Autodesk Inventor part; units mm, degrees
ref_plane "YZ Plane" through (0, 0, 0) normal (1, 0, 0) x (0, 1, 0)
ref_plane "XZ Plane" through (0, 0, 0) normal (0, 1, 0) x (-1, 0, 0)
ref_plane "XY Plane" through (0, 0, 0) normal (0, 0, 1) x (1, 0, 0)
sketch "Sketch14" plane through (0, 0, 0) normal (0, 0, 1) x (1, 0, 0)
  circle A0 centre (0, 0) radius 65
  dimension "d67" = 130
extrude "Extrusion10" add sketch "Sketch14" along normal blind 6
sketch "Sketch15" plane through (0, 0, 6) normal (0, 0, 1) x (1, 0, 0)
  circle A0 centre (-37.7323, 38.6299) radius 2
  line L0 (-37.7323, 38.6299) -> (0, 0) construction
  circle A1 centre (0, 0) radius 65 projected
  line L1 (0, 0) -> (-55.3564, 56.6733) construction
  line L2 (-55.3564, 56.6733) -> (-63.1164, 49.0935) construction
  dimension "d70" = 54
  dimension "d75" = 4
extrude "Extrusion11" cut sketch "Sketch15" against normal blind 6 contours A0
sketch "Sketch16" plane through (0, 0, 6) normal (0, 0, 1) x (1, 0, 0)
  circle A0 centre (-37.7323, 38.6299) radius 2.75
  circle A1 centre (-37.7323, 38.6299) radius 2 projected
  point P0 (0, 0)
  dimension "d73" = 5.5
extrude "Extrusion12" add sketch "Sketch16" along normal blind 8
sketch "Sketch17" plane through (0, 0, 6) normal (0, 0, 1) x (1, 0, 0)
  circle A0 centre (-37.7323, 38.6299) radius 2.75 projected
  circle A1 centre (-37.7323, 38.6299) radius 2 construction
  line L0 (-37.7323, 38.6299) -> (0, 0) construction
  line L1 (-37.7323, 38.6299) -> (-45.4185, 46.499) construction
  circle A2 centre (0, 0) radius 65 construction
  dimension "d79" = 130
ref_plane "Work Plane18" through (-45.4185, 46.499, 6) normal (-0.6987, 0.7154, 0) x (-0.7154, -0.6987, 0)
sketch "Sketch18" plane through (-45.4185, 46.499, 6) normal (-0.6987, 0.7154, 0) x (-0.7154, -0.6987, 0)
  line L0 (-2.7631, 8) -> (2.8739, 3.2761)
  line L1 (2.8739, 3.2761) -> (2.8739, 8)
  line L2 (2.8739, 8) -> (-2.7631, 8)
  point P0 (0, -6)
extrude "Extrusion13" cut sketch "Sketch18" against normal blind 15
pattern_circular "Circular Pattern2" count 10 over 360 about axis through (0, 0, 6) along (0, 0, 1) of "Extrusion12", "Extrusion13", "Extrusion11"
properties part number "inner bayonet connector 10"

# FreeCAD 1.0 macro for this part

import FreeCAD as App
import Part
import Sketcher
from FreeCAD import Vector

doc = App.newDocument("Part")
body = doc.addObject("PartDesign::Body", "Body")

sketch1 = body.newObject("Sketcher::SketchObject", "Sketch")
sketch1.AttachmentSupport = (doc.getObject("XY_Plane"), [""])
sketch1.MapMode = "FlatFace"
sketch1.addGeometry(Part.Circle(Vector(0, 0, 0), Vector(0, 0, 1), 65), False)
sketch1.addConstraint([
    Sketcher.Constraint("Coincident", 0, 3, -1, 1),
    Sketcher.Constraint("Diameter", 0, 130.0),
])
pad1 = body.newObject("PartDesign::Pad", "Pad")
pad1.Profile = sketch1
pad1.Length = 6

sketch2 = body.newObject("Sketcher::SketchObject", "Sketch001")
sketch2.AttachmentSupport = (doc.getObject("XY_Plane"), [""])
sketch2.MapMode = "FlatFace"
sketch2.AttachmentOffset = App.Placement(Vector(0, 0, 6), App.Rotation())
sketch2.addGeometry(Part.Circle(Vector(-37.7, 38.6, 0), Vector(0, 0, 1), 2), False)
sketch2.addConstraint([
    Sketcher.Constraint("Diameter", 0, 4.0),
    Sketcher.Constraint("DistanceY", -1, 1, 0, 3, 38.63),
    Sketcher.Constraint("DistanceX", 0, 3, -1, 1, 37.7323),
])
pocket1 = body.newObject("PartDesign::Pocket", "Pocket")
pocket1.Profile = sketch2
pocket1.Length = 6

sketch3 = body.newObject("Sketcher::SketchObject", "Sketch002")
sketch3.AttachmentSupport = (doc.getObject("XY_Plane"), [""])
sketch3.MapMode = "FlatFace"
sketch3.AttachmentOffset = App.Placement(Vector(0, 0, 6), App.Rotation())
sketch3.addGeometry([
    Part.Circle(Vector(-37.7, 38.6, 0), Vector(0, 0, 1), 2.8),
    Part.Circle(Vector(-37.7, 38.6, 0), Vector(0, 0, 1), 2),
], False)
sketch3.addConstraint([
    Sketcher.Constraint("Coincident", 1, 3, 0, 3),
    Sketcher.Constraint("Diameter", 0, 5.5),
    Sketcher.Constraint("Diameter", 1, 4.0),
    Sketcher.Constraint("DistanceY", -1, 1, 0, 3, 38.63),
    Sketcher.Constraint("DistanceX", 0, 3, -1, 1, 37.7323),
])
pad2 = body.newObject("PartDesign::Pad", "Pad001")
pad2.Profile = sketch3
pad2.Length = 8

sketch4 = body.newObject("Sketcher::SketchObject", "Sketch003")
sketch4.Placement = App.Placement(Vector(-45.4185, 46.499, 6), App.Rotation(Vector(-0.715407565, -0.698707389, 0), Vector(0, 0, 1), Vector(-0.698707389, 0.715407565, 0), "ZXY"))
sketch4.addGeometry([
    Part.LineSegment(Vector(2.9, 8, 0), Vector(-2.8, 8, 0)),
    Part.LineSegment(Vector(-2.8, 8, 0), Vector(2.9, 3.3, 0)),
    Part.LineSegment(Vector(2.9, 3.3, 0), Vector(2.9, 8, 0)),
], False)
sketch4.addConstraint([
    Sketcher.Constraint("Coincident", 0, 2, 1, 1),
    Sketcher.Constraint("Coincident", 1, 2, 2, 1),
    Sketcher.Constraint("Coincident", 2, 2, 0, 1),
    Sketcher.Constraint("Horizontal", 0),
    Sketcher.Constraint("Vertical", 2),
    Sketcher.Constraint("DistanceY", -1, 1, 0, 2, 8.0),
    Sketcher.Constraint("DistanceX", 0, 2, 0, 1, 5.637),
    Sketcher.Constraint("DistanceY", 2, 1, 2, 2, 4.724),
    Sketcher.Constraint("DistanceX", 0, 2, -1, 1, 2.763),
])
pocket2 = body.newObject("PartDesign::Pocket", "Pocket001")
pocket2.Profile = sketch4
pocket2.Length = 15
doc.recompute()

polarpattern = body.newObject("PartDesign::PolarPattern", "PolarPattern")
polarpattern.Originals = [pad2, pocket2, pocket1]
polarpattern.Axis = (doc.getObject("Z_Axis"), [""])
polarpattern.Angle = 360
polarpattern.Occurrences = 10
body.Tip = polarpattern

doc.recompute()
